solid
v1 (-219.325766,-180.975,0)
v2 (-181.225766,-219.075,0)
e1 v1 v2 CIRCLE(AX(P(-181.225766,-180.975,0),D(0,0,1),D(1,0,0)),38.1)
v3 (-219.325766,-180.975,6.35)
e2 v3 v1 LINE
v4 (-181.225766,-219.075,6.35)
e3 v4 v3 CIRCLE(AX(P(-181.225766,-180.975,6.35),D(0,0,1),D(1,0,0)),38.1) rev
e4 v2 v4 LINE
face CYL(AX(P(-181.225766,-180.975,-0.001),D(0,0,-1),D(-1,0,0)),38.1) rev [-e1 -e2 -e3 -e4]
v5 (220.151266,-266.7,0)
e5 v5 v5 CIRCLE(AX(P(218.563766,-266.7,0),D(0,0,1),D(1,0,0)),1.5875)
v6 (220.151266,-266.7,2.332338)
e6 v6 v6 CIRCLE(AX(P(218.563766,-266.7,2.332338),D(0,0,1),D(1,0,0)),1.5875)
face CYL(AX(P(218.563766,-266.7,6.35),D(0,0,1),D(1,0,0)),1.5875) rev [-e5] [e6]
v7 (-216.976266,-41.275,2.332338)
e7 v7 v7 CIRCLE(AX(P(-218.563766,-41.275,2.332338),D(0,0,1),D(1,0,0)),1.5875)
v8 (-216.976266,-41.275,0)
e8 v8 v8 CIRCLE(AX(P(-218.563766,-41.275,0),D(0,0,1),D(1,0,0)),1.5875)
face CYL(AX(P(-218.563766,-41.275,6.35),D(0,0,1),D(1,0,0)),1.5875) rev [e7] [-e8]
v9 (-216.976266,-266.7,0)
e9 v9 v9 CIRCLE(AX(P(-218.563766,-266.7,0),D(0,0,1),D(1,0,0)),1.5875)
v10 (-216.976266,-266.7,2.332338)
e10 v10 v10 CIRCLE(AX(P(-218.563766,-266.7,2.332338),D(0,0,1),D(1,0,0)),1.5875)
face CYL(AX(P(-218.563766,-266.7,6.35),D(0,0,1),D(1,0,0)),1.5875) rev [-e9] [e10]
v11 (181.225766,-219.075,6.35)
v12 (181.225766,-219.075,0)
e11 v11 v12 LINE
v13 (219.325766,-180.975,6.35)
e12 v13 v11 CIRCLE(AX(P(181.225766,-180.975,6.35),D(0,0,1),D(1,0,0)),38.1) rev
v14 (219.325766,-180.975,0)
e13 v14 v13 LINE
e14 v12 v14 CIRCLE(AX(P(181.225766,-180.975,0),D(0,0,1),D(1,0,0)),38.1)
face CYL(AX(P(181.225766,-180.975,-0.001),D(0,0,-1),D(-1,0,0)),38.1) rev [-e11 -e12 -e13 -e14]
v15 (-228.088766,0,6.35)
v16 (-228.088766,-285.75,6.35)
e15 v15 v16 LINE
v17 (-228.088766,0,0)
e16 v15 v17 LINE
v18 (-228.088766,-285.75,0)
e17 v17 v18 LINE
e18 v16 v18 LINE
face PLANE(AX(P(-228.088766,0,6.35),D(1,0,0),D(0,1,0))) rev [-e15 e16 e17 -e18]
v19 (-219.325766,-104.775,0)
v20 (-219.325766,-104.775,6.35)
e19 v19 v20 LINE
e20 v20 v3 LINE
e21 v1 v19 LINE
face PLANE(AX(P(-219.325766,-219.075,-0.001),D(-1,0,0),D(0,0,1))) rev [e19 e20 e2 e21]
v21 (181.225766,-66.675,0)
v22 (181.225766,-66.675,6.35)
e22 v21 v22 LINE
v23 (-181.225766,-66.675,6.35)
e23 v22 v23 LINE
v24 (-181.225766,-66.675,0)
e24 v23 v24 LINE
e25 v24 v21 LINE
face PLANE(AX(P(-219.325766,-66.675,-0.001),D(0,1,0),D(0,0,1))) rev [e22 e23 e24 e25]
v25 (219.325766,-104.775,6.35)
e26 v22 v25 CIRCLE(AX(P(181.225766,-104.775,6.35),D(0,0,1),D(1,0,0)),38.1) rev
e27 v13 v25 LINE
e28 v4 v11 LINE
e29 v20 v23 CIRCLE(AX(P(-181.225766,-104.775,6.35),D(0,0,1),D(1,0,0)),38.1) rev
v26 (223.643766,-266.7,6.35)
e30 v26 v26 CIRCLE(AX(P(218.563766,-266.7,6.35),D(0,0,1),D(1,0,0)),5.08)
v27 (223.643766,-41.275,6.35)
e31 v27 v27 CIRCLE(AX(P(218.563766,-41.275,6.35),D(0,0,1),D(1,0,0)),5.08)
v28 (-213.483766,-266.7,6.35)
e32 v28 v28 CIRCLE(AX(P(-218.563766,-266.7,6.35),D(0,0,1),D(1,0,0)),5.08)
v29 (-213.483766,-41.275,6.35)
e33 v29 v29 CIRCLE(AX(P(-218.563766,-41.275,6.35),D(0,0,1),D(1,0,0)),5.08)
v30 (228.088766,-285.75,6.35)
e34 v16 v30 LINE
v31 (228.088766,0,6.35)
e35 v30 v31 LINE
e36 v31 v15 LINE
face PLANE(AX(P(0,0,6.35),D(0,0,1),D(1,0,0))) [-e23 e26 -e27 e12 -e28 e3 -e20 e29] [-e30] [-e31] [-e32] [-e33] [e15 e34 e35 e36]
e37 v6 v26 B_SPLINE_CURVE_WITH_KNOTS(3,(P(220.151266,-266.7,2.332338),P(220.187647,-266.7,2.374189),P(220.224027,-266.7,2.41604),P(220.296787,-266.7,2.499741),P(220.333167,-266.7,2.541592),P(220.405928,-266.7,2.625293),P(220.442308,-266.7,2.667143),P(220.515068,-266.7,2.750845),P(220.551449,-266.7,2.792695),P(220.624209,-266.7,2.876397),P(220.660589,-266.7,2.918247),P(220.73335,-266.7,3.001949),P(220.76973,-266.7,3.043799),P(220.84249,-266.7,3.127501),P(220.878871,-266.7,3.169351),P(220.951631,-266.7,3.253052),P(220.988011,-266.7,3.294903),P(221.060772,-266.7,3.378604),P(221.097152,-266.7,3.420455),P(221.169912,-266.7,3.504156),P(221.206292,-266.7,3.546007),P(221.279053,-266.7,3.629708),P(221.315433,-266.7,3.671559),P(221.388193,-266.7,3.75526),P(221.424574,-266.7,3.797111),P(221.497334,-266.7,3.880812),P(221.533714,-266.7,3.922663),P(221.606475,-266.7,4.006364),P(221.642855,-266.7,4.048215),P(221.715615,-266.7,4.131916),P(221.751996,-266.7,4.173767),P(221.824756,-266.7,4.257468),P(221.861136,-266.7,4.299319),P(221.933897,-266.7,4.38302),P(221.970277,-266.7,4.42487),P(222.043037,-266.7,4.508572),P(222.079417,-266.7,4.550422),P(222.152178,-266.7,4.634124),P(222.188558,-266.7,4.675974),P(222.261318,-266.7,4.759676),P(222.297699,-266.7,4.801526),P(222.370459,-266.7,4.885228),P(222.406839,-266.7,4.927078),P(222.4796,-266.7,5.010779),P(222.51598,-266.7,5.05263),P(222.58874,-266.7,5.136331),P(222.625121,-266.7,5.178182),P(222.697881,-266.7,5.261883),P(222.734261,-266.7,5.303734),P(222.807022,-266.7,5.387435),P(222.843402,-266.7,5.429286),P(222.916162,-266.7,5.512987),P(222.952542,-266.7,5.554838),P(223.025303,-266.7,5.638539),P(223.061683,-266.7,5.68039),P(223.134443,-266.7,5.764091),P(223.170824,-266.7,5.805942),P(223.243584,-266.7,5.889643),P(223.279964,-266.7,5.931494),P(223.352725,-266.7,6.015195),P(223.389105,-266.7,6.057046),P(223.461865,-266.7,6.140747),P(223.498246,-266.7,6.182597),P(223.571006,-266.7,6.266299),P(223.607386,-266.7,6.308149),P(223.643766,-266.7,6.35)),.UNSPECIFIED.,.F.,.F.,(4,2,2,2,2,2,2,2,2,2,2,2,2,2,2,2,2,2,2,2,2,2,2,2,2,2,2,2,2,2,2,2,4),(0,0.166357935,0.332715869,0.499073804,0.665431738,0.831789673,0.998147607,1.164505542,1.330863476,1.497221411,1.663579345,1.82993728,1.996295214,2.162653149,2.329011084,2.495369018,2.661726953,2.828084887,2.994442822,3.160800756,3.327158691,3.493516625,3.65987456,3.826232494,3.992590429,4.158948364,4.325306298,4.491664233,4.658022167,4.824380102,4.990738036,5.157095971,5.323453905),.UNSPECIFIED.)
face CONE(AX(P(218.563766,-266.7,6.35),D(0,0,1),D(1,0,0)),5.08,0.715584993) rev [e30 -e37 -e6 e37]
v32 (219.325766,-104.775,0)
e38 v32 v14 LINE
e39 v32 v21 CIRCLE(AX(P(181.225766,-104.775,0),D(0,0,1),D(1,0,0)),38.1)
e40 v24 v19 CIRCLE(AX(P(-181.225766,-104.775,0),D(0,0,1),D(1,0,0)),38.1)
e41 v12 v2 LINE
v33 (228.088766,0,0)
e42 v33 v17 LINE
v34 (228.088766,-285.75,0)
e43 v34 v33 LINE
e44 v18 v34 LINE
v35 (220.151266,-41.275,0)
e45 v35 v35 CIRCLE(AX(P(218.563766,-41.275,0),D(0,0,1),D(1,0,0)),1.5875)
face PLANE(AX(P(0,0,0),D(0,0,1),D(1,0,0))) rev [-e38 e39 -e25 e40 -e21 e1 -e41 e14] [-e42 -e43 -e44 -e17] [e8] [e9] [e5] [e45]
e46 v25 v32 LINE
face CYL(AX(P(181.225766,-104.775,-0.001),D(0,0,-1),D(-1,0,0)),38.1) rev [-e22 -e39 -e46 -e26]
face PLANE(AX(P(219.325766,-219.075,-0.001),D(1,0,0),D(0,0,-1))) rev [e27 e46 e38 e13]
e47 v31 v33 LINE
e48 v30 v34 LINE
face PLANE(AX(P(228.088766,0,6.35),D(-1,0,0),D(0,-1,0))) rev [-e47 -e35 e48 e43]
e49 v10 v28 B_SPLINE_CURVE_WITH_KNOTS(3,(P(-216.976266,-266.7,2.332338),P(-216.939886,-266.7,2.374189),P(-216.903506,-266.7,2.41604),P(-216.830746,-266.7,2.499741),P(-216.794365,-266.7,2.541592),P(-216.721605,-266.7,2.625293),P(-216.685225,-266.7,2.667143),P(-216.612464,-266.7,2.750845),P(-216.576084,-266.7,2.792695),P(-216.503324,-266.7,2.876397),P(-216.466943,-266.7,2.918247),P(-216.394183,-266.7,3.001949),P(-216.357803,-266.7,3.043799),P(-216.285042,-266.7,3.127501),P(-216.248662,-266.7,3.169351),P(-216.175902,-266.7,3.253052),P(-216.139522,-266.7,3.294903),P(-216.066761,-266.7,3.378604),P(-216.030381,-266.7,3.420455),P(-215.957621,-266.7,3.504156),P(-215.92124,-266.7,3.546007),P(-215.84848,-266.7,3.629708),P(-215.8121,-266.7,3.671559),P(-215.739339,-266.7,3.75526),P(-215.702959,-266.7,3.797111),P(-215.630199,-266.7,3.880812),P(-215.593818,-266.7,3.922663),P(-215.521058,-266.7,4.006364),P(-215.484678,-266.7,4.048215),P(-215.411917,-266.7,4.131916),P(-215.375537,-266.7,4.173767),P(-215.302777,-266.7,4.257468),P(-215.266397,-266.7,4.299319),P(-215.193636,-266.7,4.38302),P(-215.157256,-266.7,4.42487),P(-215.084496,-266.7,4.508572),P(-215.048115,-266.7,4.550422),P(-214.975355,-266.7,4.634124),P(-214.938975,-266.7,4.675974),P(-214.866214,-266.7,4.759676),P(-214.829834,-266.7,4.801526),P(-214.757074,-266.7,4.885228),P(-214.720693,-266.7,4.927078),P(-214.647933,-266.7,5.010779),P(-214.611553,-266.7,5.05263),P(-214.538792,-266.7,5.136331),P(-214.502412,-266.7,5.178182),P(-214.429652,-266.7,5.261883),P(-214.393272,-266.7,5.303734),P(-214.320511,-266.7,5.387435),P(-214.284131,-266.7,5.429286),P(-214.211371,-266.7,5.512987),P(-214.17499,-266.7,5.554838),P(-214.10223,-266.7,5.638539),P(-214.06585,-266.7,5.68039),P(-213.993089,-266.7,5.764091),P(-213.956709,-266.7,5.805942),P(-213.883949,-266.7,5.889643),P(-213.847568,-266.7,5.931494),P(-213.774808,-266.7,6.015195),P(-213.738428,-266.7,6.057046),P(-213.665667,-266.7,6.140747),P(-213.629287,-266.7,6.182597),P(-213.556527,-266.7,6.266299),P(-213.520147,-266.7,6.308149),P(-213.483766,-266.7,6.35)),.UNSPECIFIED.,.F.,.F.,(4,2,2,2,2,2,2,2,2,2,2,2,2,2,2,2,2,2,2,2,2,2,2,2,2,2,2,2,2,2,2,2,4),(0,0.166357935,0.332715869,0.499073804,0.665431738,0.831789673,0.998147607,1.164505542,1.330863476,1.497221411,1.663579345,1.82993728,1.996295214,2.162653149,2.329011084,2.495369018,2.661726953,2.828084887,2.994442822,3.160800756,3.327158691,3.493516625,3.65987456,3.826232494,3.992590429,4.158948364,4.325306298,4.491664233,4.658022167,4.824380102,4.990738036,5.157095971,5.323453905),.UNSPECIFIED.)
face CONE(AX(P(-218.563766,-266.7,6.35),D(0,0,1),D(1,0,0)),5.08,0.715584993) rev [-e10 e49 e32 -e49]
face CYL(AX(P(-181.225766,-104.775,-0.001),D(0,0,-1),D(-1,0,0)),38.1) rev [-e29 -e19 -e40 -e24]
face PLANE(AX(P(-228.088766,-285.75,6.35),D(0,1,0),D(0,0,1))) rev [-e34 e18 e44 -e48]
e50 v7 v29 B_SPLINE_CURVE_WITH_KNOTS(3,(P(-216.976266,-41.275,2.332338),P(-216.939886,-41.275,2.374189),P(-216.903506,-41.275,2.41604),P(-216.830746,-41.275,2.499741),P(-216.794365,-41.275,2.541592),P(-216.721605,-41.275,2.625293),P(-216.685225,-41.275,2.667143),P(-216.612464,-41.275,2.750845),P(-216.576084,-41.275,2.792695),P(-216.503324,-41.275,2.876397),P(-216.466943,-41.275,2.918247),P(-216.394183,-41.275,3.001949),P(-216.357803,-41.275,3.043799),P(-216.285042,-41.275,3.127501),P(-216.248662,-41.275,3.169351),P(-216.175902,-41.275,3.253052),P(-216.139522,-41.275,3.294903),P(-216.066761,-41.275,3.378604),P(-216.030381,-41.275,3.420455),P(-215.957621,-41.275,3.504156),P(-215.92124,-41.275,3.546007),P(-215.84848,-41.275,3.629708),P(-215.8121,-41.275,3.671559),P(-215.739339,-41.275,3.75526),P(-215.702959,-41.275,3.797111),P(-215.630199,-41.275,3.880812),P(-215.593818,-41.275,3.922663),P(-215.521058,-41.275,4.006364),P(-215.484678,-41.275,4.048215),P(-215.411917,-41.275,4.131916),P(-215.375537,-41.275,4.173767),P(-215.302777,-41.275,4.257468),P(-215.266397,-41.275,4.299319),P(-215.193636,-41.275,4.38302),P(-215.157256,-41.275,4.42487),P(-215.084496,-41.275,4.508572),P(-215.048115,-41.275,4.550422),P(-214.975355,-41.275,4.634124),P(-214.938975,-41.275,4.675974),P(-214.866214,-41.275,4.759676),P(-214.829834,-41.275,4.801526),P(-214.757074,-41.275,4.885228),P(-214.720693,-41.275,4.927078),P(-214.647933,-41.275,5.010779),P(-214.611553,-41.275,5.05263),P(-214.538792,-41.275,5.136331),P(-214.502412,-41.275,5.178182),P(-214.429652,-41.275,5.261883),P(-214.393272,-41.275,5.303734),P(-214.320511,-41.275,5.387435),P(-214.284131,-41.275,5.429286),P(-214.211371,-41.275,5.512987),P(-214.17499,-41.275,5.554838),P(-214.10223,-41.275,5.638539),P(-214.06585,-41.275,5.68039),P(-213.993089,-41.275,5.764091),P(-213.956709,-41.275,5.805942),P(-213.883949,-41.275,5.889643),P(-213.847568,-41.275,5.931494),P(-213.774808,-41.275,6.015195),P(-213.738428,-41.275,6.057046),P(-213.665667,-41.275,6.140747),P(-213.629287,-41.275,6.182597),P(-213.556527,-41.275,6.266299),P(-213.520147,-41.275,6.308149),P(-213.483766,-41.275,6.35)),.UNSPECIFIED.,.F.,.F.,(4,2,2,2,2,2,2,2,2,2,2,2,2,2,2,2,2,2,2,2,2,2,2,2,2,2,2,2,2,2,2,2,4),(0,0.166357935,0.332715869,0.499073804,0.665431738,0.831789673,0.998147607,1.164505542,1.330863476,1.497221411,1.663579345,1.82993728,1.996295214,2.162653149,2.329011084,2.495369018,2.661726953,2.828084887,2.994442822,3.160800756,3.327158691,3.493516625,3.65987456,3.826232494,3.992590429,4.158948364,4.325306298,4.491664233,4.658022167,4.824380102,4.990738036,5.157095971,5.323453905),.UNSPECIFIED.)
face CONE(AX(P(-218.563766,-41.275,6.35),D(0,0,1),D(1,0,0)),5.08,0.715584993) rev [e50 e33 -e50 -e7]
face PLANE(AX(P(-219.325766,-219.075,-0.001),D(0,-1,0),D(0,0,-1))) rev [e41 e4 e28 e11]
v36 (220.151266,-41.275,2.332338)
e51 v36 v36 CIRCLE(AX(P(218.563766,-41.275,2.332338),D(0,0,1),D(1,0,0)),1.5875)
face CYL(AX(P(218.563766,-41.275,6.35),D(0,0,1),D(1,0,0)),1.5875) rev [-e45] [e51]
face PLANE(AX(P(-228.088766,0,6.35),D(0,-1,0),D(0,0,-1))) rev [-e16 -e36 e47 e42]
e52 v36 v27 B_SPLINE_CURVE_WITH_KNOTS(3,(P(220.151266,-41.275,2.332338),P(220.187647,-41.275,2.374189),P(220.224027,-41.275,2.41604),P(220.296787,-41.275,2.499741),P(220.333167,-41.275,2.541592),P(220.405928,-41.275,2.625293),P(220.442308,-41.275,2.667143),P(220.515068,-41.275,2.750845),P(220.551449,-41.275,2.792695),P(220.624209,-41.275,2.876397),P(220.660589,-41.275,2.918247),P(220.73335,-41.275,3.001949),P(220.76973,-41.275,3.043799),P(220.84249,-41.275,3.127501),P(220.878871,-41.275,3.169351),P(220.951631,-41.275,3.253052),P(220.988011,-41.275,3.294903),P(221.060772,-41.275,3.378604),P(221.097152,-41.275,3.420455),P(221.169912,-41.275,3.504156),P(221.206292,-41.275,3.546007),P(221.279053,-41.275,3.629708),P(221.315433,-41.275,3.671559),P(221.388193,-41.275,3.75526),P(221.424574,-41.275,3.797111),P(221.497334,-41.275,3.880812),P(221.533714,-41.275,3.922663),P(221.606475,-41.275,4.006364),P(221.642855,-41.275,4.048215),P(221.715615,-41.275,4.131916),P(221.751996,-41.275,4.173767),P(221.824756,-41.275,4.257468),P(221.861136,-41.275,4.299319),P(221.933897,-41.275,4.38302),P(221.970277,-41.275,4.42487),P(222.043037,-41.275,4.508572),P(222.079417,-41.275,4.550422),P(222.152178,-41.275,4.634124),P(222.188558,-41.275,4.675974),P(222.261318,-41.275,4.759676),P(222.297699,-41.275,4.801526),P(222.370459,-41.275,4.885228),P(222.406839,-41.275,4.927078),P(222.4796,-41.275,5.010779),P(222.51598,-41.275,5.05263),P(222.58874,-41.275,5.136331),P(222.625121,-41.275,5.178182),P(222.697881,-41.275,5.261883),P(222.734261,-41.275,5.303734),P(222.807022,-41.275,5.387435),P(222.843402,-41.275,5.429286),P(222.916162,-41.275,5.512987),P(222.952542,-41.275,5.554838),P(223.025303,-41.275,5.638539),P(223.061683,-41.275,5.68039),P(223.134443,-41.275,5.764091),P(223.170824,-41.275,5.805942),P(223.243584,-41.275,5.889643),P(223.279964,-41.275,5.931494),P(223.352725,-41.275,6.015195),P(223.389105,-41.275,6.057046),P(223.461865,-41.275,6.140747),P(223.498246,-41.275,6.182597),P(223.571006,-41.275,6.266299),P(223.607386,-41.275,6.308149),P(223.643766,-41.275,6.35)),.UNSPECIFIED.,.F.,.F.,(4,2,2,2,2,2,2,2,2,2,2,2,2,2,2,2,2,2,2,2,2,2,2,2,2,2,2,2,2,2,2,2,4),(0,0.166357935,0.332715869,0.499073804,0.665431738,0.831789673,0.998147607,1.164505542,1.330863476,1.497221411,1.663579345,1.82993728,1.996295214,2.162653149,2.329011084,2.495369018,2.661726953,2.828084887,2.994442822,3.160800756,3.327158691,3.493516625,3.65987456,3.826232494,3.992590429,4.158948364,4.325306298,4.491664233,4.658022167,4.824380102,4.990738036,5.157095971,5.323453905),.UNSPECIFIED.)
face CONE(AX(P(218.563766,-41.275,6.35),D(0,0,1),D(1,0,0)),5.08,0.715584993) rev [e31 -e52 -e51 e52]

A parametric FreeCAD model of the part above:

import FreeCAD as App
import Part
import Sketcher
from FreeCAD import Vector
Q = App.Units.Quantity


def edges_at(feature, points):
    """Names of the edges that pass closest to the given points."""
    edges = feature.Shape.Edges
    near = lambda p: min(range(len(edges)), key=lambda i: edges[i].distToShape(Part.Vertex(*p))[0])
    return sorted({f"Edge{near(p) + 1}" for p in points})

doc = App.newDocument("Part")
body = doc.addObject("PartDesign::Body", "Body")

sketch1 = body.newObject("Sketcher::SketchObject", "Sketch")
sketch1.AttachmentSupport = (doc.getObject("XY_Plane"), [""])
sketch1.MapMode = "FlatFace"
sketch1.addGeometry(Part.LineSegment(Vector(-228, 0, 0), Vector(-228, -286, 0)), False)
sketch1.addGeometry(Part.LineSegment(Vector(-228, -286, 0), Vector(228, -286, 0)), False)
sketch1.addGeometry(Part.LineSegment(Vector(228, -286, 0), Vector(228, 0, 0)), False)
sketch1.addGeometry(Part.LineSegment(Vector(228, 0, 0), Vector(-228, 0, 0)), False)
sketch1.addConstraint(Sketcher.Constraint("Coincident", 0, 2, 1, 1))
sketch1.addConstraint(Sketcher.Constraint("Coincident", 1, 2, 2, 1))
sketch1.addConstraint(Sketcher.Constraint("Coincident", 2, 2, 3, 1))
sketch1.addConstraint(Sketcher.Constraint("Coincident", 3, 2, 0, 1))
sketch1.addConstraint(Sketcher.Constraint("Vertical", 0))
sketch1.addConstraint(Sketcher.Constraint("Horizontal", 1))
sketch1.addConstraint(Sketcher.Constraint("Vertical", 2))
sketch1.addConstraint(Sketcher.Constraint("Horizontal", 3))
sketch1.addConstraint(Sketcher.Constraint("Symmetric", 2, 2, 3, 2, -1, 1))
sketch1.addConstraint(Sketcher.Constraint("DistanceY", 0, 2, 0, 1, Q("11.25 in")))
sketch1.addConstraint(Sketcher.Constraint("DistanceX", 1, 1, 1, 2, 456.177533))
pad1 = body.newObject("PartDesign::Pad", "Pad")
pad1.Profile = sketch1
pad1.Length = Q("0.25 in")

sketch2 = body.newObject("Sketcher::SketchObject", "Sketch001")
sketch2.AttachmentSupport = (doc.getObject("XY_Plane"), [""])
sketch2.MapMode = "FlatFace"
sketch2.AttachmentOffset = App.Placement(Vector(0, 0, 0.25 * 25.4), App.Rotation())
sketch2.addGeometry(Part.LineSegment(Vector(-219, -67, 0), Vector(-219, -219, 0)), False)
sketch2.addGeometry(Part.LineSegment(Vector(-219, -219, 0), Vector(219, -219, 0)), False)
sketch2.addGeometry(Part.LineSegment(Vector(219, -219, 0), Vector(219, -67, 0)), False)
sketch2.addGeometry(Part.LineSegment(Vector(219, -67, 0), Vector(-219, -67, 0)), False)
sketch2.addConstraint(Sketcher.Constraint("Coincident", 0, 2, 1, 1))
sketch2.addConstraint(Sketcher.Constraint("Coincident", 1, 2, 2, 1))
sketch2.addConstraint(Sketcher.Constraint("Coincident", 2, 2, 3, 1))
sketch2.addConstraint(Sketcher.Constraint("Coincident", 3, 2, 0, 1))
sketch2.addConstraint(Sketcher.Constraint("Vertical", 0))
sketch2.addConstraint(Sketcher.Constraint("Horizontal", 1))
sketch2.addConstraint(Sketcher.Constraint("Vertical", 2))
sketch2.addConstraint(Sketcher.Constraint("Horizontal", 3))
sketch2.addConstraint(Sketcher.Constraint("DistanceY", 0, 2, 0, 1, Q("6 in")))
sketch2.addConstraint(Sketcher.Constraint("DistanceY", 0, 2, -1, 1, Q("8.625 in")))
sketch2.addConstraint(Sketcher.Constraint("DistanceX", 1, 1, 1, 2, 438.651533))
sketch2.addConstraint(Sketcher.Constraint("DistanceX", 0, 2, -1, 1, 219.325766))
pocket1 = body.newObject("PartDesign::Pocket", "Pocket")
pocket1.Profile = sketch2
pocket1.Type = "UpToFirst"
doc.recompute()

fillet = body.newObject("PartDesign::Fillet", "Fillet")
fillet.Base = (pocket1, edges_at(pocket1, [
    (219.326, -66.675, 3.175),
    (219.326, -219.075, 3.175),
    (-219.326, -219.075, 3.175),
    (-219.326, -66.675, 3.175),
]))
fillet.Radius = Q("1.5 in")

sketch3 = body.newObject("Sketcher::SketchObject", "Sketch002")
sketch3.AttachmentSupport = (doc.getObject("XY_Plane"), [""])
sketch3.MapMode = "FlatFace"
sketch3.AttachmentOffset = App.Placement(Vector(0, 0, 0.25 * 25.4), App.Rotation())
sketch3.addGeometry(Part.Circle(Vector(-218.6, -266.7, 0), Vector(0, 0, 1), 1.6), False)
sketch3.addGeometry(Part.Circle(Vector(-218.6, -41.3, 0), Vector(0, 0, 1), 1.6), False)
sketch3.addGeometry(Part.Circle(Vector(218.6, -266.7, 0), Vector(0, 0, 1), 1.6), False)
sketch3.addGeometry(Part.Circle(Vector(218.6, -41.3, 0), Vector(0, 0, 1), 1.6), False)
sketch3.addConstraint(Sketcher.Constraint("Equal", 0, 1))
sketch3.addConstraint(Sketcher.Constraint("Equal", 1, 2))
sketch3.addConstraint(Sketcher.Constraint("Equal", 2, 3))
sketch3.addConstraint(Sketcher.Constraint("Symmetric", 0, 3, 2, 3, -2))
sketch3.addConstraint(Sketcher.Constraint("Symmetric", 1, 3, 3, 3, -2))
sketch3.addConstraint(Sketcher.Constraint("Vertical", 0, 3, 1, 3))
sketch3.addConstraint(Sketcher.Constraint("Diameter", 0, Q("0.125 in")))
sketch3.addConstraint(Sketcher.Constraint("DistanceY", 0, 3, -1, 1, Q("10.5 in")))
sketch3.addConstraint(Sketcher.Constraint("DistanceY", 1, 3, -1, 1, Q("1.625 in")))
sketch3.addConstraint(Sketcher.Constraint("DistanceX", 0, 3, -1, 1, 218.563766))
doc.recompute()
hole = body.newObject("PartDesign::Hole", "Hole")
hole.Profile = sketch3
hole.ThreadType = "None"
hole.Diameter = Q("0.125 in")
hole.DepthType = "Dimension"
hole.Depth = Q("1.5 in")
hole.DrillPoint = "Angled"
hole.DrillPointAngle = 118
hole.HoleCutType = "Countersink"
hole.HoleCutDiameter = Q("0.4 in")
hole.HoleCutCountersinkAngle = 82

doc.recompute()
